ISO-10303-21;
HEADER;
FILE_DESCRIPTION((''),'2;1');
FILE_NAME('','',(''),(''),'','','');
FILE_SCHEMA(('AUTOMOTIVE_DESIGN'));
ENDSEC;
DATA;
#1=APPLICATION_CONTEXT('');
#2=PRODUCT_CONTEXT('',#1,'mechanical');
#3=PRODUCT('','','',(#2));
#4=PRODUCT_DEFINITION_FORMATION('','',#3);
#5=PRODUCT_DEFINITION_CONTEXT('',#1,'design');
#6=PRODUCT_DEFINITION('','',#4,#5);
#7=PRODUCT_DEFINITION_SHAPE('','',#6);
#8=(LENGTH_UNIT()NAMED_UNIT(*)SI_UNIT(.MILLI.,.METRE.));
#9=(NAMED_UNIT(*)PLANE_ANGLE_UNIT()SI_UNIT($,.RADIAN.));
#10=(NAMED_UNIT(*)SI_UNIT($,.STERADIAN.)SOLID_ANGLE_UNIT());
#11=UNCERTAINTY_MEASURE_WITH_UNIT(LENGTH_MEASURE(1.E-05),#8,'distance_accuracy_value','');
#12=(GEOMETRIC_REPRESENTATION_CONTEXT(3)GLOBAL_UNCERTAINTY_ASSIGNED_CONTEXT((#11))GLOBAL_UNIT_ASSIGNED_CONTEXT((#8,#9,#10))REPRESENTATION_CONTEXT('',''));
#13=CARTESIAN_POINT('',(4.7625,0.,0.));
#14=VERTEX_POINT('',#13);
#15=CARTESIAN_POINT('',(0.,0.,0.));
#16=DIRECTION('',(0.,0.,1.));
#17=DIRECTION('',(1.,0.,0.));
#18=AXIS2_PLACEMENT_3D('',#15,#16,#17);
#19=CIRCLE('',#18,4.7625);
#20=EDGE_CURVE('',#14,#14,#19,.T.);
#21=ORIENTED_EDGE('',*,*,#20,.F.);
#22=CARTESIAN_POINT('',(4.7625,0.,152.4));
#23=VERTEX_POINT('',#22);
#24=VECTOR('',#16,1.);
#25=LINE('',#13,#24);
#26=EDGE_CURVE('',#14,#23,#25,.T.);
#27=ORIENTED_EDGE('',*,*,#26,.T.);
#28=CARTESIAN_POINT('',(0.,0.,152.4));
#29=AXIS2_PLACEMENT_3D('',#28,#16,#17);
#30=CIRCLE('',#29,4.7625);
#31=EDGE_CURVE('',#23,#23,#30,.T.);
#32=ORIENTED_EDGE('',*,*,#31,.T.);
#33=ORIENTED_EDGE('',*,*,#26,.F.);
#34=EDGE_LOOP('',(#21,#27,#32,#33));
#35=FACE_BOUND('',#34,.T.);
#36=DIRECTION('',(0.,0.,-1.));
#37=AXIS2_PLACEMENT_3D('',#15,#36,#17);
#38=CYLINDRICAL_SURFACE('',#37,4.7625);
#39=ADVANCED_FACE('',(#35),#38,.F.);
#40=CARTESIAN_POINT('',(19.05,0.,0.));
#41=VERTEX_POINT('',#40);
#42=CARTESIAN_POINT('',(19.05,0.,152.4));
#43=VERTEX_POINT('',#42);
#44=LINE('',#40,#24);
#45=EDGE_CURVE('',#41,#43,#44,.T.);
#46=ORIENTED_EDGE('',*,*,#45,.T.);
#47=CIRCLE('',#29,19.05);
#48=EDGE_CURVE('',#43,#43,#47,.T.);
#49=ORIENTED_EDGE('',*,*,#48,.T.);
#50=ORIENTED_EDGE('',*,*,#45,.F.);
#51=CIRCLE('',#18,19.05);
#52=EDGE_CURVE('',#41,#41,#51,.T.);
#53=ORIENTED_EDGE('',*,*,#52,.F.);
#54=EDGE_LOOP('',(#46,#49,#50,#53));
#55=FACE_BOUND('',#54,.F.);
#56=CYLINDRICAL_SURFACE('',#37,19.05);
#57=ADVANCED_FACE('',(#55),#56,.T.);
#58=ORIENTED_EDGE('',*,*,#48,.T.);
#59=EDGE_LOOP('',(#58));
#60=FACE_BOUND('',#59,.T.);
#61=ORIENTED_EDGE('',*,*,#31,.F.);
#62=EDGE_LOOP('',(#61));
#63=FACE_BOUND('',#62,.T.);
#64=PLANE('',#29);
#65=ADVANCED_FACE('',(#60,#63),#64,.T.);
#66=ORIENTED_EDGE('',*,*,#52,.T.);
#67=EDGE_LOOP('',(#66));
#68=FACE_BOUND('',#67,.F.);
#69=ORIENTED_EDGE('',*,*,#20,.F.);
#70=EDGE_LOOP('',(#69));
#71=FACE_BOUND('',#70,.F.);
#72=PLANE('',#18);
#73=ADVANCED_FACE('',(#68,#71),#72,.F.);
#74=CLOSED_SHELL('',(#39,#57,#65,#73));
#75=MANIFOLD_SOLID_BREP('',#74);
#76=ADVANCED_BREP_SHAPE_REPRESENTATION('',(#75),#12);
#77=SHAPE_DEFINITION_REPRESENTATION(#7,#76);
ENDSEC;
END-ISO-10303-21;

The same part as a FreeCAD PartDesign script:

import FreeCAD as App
import Part
import Sketcher
from FreeCAD import Vector
Q = App.Units.Quantity

doc = App.newDocument("Part")
body = doc.addObject("PartDesign::Body", "Body")

sketch1 = body.newObject("Sketcher::SketchObject", "Sketch")
sketch1.AttachmentSupport = (doc.getObject("XY_Plane"), [""])
sketch1.MapMode = "FlatFace"
sketch1.addGeometry(Part.Circle(Vector(0, 0, 0), Vector(0, 0, 1), 19.1), False)
sketch1.addGeometry(Part.Circle(Vector(0, 0, 0), Vector(0, 0, 1), 4.8), False)
sketch1.addConstraint(Sketcher.Constraint("Coincident", 0, 3, -1, 1))
sketch1.addConstraint(Sketcher.Constraint("Coincident", 1, 3, -1, 1))
sketch1.addConstraint(Sketcher.Constraint("Diameter", 0, Q("1.5 in")))
sketch1.addConstraint(Sketcher.Constraint("Diameter", 1, Q("0.375 in")))
pad1 = body.newObject("PartDesign::Pad", "Pad")
pad1.Profile = sketch1
pad1.Length = Q("6 in")

doc.recompute()
